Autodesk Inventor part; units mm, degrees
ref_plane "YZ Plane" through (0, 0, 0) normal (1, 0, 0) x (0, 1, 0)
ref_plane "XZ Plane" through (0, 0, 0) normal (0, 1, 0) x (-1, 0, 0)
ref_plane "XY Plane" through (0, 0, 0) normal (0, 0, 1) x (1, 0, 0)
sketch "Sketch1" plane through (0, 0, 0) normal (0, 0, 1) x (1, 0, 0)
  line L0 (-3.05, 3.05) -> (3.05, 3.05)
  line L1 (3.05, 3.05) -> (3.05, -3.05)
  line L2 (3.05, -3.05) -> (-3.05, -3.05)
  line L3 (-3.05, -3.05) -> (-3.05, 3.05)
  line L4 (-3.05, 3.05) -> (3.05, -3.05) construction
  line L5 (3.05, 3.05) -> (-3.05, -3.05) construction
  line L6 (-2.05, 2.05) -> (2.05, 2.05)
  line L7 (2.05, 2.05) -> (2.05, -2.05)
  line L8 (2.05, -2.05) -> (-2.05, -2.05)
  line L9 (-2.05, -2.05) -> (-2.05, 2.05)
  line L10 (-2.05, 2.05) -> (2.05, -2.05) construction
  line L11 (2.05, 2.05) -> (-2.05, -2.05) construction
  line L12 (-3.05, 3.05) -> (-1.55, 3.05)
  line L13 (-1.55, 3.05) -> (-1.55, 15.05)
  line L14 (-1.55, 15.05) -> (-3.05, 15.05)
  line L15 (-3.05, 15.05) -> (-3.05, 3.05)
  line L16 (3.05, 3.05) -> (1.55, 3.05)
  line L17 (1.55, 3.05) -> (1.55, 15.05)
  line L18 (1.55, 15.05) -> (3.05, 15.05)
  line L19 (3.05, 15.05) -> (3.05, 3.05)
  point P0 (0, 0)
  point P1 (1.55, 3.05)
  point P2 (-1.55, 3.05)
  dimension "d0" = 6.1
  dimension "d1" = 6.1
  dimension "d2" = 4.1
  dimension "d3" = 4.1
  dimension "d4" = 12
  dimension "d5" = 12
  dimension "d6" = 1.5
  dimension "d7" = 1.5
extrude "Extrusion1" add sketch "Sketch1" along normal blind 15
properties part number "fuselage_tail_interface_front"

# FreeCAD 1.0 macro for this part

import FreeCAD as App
import Part
import Sketcher
from FreeCAD import Vector


def add_polygon(sketch, points):
    """Adds a closed chain of lines whose ends are joined by coincident constraints."""
    first, n = sketch.GeometryCount, len(points)
    for a, b in zip(points, points[1:] + points[:1]):
        sketch.addGeometry(Part.LineSegment(App.Vector(*a, 0), App.Vector(*b, 0)), False)
    for i in range(n):
        sketch.addConstraint(Sketcher.Constraint("Coincident", first + i, 2, first + (i + 1) % n, 1))

doc = App.newDocument("Part")
params = doc.addObject("Spreadsheet::Sheet", "Params")
for row, (alias, value) in enumerate([
    ("sketch1_height", "12 mm"),
    ("sketch1_width", "6.1 mm"),
    ("sketch1_width2", "1.5 mm"),
    ("sketch1_width3", "4.1 mm"),
    ("pad1_length", "15 mm"),
], start=1):
    params.set(f"A{row}", alias)
    params.set(f"B{row}", "=" + value)
    params.setAlias(f"B{row}", alias)

body = doc.addObject("PartDesign::Body", "Body")

# Sketch on XY plane
sketch1 = body.newObject("Sketcher::SketchObject", "Sketch")
sketch1.AttachmentSupport = (doc.getObject("XY_Plane"), [""])
sketch1.MapMode = "FlatFace"
add_polygon(sketch1, [(-3, 15.1), (-3, -3), (3, -3), (3, 15.1), (1.6, 15.1), (1.6, 3), (-1.6, 3), (-1.6, 15.1)])  # lines 0-7
add_polygon(sketch1, [(-2, 2), (2, 2), (2, -2), (-2, -2)])  # lines 8-11
sketch1.addConstraint([
    Sketcher.Constraint("Vertical", 0),
    Sketcher.Constraint("Horizontal", 1),
    Sketcher.Constraint("Vertical", 2),
    Sketcher.Constraint("Horizontal", 3),
    Sketcher.Constraint("Vertical", 4),
    Sketcher.Constraint("Horizontal", 5),
    Sketcher.Constraint("Vertical", 6),
    Sketcher.Constraint("Horizontal", 7),
    Sketcher.Constraint("Horizontal", 8),
    Sketcher.Constraint("Vertical", 9),
    Sketcher.Constraint("Horizontal", 10),
    Sketcher.Constraint("Vertical", 11),
    Sketcher.Constraint("Symmetric", 8, 2, 10, 2, -1, 1),
    Sketcher.Constraint("Symmetric", 3, 2, 6, 2, -2),
    Sketcher.Constraint("Equal", 3, 7),
    Sketcher.Constraint("Equal", 10, 9),
    Sketcher.Constraint("DistanceY", 4, 2, 4, 1, 12.0),
    Sketcher.Constraint("DistanceX", 1, 1, 1, 2, 6.1),
    Sketcher.Constraint("DistanceX", 3, 2, 3, 1, 1.5),
    Sketcher.Constraint("DistanceX", 8, 1, 8, 2, 4.1),
    Sketcher.Constraint("DistanceY", 1, 2, 4, 2, 6.1),
    Sketcher.Constraint("DistanceY", 8, 2, 4, 2, 1.0),
])
sketch1.setExpression("Constraints[28]", "Params.sketch1_height")
sketch1.setExpression("Constraints[29]", "Params.sketch1_width")
sketch1.setExpression("Constraints[30]", "Params.sketch1_width2")
sketch1.setExpression("Constraints[31]", "Params.sketch1_width3")
pad1 = body.newObject("PartDesign::Pad", "Pad")
pad1.Profile = sketch1
pad1.setExpression("Length", "Params.pad1_length")

doc.recompute()
